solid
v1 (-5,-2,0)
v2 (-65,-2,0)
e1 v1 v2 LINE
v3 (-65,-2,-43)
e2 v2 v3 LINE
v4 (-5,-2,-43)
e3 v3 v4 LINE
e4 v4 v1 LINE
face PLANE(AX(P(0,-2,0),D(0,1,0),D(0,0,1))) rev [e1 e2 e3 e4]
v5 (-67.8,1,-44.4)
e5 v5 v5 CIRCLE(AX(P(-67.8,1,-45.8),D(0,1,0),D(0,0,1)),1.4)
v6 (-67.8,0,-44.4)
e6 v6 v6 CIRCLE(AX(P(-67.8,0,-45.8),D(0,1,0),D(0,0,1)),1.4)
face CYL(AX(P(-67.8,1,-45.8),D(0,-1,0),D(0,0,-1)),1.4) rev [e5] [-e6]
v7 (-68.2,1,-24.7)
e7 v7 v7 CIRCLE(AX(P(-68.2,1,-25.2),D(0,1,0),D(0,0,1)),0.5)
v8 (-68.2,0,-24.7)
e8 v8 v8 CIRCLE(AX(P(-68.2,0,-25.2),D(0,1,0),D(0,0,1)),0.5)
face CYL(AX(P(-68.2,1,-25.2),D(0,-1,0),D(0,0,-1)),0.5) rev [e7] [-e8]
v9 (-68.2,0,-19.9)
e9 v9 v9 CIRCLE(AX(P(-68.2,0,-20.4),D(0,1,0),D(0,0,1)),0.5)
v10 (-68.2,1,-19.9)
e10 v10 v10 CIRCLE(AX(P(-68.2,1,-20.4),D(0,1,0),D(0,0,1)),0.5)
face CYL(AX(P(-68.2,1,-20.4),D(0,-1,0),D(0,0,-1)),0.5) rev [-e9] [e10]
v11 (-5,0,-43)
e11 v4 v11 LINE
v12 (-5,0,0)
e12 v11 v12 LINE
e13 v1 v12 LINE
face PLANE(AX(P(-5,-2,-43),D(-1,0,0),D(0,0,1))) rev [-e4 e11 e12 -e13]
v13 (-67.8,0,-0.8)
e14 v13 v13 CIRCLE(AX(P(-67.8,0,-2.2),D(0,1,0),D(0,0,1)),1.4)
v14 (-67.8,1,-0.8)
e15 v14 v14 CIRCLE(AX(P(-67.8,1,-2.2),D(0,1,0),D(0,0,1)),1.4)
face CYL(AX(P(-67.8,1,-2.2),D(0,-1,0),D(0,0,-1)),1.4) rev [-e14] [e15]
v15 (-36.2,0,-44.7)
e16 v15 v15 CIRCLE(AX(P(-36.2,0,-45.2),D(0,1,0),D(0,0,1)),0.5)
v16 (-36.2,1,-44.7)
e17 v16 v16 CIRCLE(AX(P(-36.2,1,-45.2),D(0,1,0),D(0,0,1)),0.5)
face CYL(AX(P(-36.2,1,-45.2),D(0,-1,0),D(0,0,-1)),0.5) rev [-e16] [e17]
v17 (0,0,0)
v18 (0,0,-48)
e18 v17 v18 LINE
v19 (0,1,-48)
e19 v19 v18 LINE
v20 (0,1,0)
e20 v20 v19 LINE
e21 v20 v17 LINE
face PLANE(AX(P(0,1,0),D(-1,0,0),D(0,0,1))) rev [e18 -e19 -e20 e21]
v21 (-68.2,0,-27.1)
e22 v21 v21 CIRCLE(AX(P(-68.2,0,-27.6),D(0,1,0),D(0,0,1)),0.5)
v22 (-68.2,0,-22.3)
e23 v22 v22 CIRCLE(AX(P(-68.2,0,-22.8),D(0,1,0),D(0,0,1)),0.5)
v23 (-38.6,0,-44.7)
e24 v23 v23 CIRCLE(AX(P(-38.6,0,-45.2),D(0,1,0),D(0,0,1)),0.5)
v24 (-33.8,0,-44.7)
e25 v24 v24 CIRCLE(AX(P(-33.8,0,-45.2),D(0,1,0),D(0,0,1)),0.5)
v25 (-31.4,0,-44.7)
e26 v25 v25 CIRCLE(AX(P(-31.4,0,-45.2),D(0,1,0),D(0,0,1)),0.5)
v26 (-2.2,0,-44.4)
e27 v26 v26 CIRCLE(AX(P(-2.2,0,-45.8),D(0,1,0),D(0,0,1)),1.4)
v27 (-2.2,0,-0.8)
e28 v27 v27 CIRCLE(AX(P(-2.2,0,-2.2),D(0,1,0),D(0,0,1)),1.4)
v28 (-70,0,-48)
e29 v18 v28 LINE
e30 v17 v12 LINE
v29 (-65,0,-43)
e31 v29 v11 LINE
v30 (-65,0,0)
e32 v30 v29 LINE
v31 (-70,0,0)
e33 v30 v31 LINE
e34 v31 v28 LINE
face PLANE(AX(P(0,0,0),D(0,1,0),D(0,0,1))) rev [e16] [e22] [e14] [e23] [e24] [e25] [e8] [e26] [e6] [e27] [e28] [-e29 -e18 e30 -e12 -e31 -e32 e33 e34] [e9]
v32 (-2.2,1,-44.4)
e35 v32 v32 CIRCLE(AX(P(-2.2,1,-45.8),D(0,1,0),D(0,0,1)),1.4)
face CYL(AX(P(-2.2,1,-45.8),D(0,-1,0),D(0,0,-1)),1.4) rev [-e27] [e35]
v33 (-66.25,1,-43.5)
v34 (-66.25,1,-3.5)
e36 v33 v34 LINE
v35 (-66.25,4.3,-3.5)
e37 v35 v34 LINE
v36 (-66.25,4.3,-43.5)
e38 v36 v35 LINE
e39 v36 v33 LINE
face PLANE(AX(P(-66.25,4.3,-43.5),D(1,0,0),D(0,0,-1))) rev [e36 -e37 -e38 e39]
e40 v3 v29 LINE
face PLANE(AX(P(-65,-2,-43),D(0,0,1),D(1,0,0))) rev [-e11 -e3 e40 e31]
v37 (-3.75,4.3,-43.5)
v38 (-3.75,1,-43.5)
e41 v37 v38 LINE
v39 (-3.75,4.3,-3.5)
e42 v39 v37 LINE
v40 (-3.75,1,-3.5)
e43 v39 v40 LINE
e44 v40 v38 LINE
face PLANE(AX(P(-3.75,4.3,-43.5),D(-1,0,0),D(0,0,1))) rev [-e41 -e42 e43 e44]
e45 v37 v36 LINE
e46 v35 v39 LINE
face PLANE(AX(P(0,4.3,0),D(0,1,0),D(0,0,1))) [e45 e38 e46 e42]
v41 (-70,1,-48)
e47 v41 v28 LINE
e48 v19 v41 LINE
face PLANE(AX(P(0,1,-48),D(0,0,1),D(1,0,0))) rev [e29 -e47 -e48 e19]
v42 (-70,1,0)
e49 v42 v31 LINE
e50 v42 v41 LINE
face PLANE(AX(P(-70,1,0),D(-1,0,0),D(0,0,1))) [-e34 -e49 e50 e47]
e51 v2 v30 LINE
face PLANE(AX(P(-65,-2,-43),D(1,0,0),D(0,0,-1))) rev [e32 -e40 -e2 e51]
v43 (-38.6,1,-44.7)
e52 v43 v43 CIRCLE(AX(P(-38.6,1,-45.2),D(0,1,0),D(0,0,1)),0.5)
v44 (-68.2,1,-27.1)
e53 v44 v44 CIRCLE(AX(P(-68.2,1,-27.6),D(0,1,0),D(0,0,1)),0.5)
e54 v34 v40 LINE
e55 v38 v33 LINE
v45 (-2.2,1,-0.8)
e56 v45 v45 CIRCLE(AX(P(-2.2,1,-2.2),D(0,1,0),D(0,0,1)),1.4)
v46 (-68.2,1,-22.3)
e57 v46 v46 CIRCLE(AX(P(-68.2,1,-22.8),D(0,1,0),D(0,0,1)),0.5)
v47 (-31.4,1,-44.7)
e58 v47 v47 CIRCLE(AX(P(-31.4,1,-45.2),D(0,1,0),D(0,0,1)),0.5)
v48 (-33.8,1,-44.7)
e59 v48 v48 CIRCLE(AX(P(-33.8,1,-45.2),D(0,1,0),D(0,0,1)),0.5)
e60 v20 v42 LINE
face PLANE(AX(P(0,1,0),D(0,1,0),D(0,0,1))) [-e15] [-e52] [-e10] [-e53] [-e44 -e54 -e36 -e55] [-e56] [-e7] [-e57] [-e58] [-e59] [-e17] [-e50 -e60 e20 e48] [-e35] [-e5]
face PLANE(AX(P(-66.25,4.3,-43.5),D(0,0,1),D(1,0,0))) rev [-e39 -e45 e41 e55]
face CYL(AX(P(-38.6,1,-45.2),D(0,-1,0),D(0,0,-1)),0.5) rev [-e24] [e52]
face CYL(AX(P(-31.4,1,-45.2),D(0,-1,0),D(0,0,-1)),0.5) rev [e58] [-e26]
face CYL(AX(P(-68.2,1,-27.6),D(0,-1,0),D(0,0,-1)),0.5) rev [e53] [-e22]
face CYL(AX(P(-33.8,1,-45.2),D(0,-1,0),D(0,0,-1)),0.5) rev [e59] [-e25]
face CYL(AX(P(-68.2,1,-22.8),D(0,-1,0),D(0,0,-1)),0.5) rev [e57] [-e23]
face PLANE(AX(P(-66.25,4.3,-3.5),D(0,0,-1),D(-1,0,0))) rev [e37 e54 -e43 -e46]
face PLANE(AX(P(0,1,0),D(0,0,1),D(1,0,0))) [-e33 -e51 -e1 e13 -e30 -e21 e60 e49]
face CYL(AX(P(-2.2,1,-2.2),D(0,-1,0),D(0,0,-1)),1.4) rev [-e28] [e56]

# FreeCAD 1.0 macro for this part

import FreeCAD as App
import Part
import Sketcher
from FreeCAD import Vector
Q = App.Units.Quantity

doc = App.newDocument("Part")
params = doc.addObject("Spreadsheet::Sheet", "Params")
for row, (alias, value) in enumerate([
    ("sketch1_diameter", "1 mm"),
    ("sketch1_diameter2", "2.8 mm"),
    ("sketch1_width", "70 mm"),
    ("sketch1_height", "48 mm"),
    ("pad1_length", "1 mm"),
    ("sketch2_height", "40 mm"),
    ("sketch2_width", "62.5 mm"),
    ("pad2_length", "3.3 mm"),
    ("sketch3_width", "60 mm"),
    ("sketch3_height", "43 mm"),
    ("pad3_length", "2 mm"),
], start=1):
    params.set(f"A{row}", alias)
    params.set(f"B{row}", "=" + value)
    params.setAlias(f"B{row}", alias)

body = doc.addObject("PartDesign::Body", "Body")

# Sketch on XZ plane
sketch1 = body.newObject("Sketcher::SketchObject", "Sketch")
sketch1.AttachmentSupport = (doc.getObject("XZ_Plane"), [""])
sketch1.MapMode = "FlatFace"
sketch1.addGeometry([
    Part.LineSegment(Vector(-70, -48, 0), Vector(-70, 0, 0)),  # 0
    Part.LineSegment(Vector(-70, 0, 0), Vector(0, 0, 0)),  # 1
    Part.LineSegment(Vector(0, 0, 0), Vector(0, -48, 0)),  # 2
    Part.LineSegment(Vector(0, -48, 0), Vector(-70, -48, 0)),  # 3
    Part.Circle(Vector(-67.8, -2.2, 0), Vector(0, 0, 1), 1.4),  # 4
    Part.Circle(Vector(-68.2, -20.4, 0), Vector(0, 0, 1), 0.5),  # 5
    Part.Circle(Vector(-68.2, -22.8, 0), Vector(0, 0, 1), 0.5),  # 6
    Part.Circle(Vector(-2.2, -2.2, 0), Vector(0, 0, 1), 1.4),  # 7
    Part.Circle(Vector(-68.2, -25.2, 0), Vector(0, 0, 1), 0.5),  # 8
    Part.Circle(Vector(-68.2, -27.6, 0), Vector(0, 0, 1), 0.5),  # 9
    Part.Circle(Vector(-67.8, -45.8, 0), Vector(0, 0, 1), 1.4),  # 10
    Part.Circle(Vector(-38.6, -45.2, 0), Vector(0, 0, 1), 0.5),  # 11
    Part.Circle(Vector(-36.2, -45.2, 0), Vector(0, 0, 1), 0.5),  # 12
    Part.Circle(Vector(-33.8, -45.2, 0), Vector(0, 0, 1), 0.5),  # 13
    Part.Circle(Vector(-31.4, -45.2, 0), Vector(0, 0, 1), 0.5),  # 14
    Part.Circle(Vector(-2.2, -45.8, 0), Vector(0, 0, 1), 1.4),  # 15
], False)
sketch1.addConstraint([
    Sketcher.Constraint("Coincident", 0, 2, 1, 1),
    Sketcher.Constraint("Coincident", 1, 2, 2, 1),
    Sketcher.Constraint("Coincident", 2, 2, 3, 1),
    Sketcher.Constraint("Coincident", 3, 2, 0, 1),
    Sketcher.Constraint("Vertical", 0),
    Sketcher.Constraint("Horizontal", 1),
    Sketcher.Constraint("Vertical", 2),
    Sketcher.Constraint("Horizontal", 3),
    Sketcher.Constraint("Coincident", 1, 2, -1, 1),
    Sketcher.Constraint("Equal", 5, 6),
    Sketcher.Constraint("Equal", 4, 7),
    Sketcher.Constraint("Equal", 6, 8),
    Sketcher.Constraint("Equal", 8, 9),
    Sketcher.Constraint("Equal", 7, 10),
    Sketcher.Constraint("Equal", 9, 11),
    Sketcher.Constraint("Equal", 11, 12),
    Sketcher.Constraint("Equal", 12, 13),
    Sketcher.Constraint("Equal", 13, 14),
    Sketcher.Constraint("Equal", 10, 15),
    Sketcher.Constraint("Horizontal", 4, 3, 7, 3),
    Sketcher.Constraint("Horizontal", 11, 3, 12, 3),
    Sketcher.Constraint("Horizontal", 12, 3, 13, 3),
    Sketcher.Constraint("Horizontal", 13, 3, 14, 3),
    Sketcher.Constraint("Horizontal", 10, 3, 15, 3),
    Sketcher.Constraint("Vertical", 5, 3, 6, 3),
    Sketcher.Constraint("Vertical", 6, 3, 8, 3),
    Sketcher.Constraint("Vertical", 8, 3, 9, 3),
    Sketcher.Constraint("Vertical", 4, 3, 10, 3),
    Sketcher.Constraint("Vertical", 7, 3, 15, 3),
    Sketcher.Constraint("Diameter", 5, Q("1 mm")),
    Sketcher.Constraint("Diameter", 4, Q("2.8 mm")),
    Sketcher.Constraint("DistanceX", 1, 1, 1, 2, Q("70 mm")),
    Sketcher.Constraint("DistanceY", 0, 1, 0, 2, Q("48 mm")),
    Sketcher.Constraint("DistanceX", 5, 3, 7, 3, Q("66 mm")),
    Sketcher.Constraint("DistanceY", 8, 3, 4, 3, Q("23 mm")),
    Sketcher.Constraint("DistanceY", 10, 3, 6, 3, Q("23 mm")),
    Sketcher.Constraint("DistanceY", 11, 3, 8, 3, Q("20 mm")),
    Sketcher.Constraint("DistanceX", 9, 3, 12, 3, Q("32 mm")),
    Sketcher.Constraint("DistanceX", 10, 3, 13, 3, Q("34 mm")),
    Sketcher.Constraint("DistanceX", 4, 3, -1, 1, Q("67.8 mm")),
    Sketcher.Constraint("DistanceY", 4, 3, -1, 1, Q("2.2 mm")),
    Sketcher.Constraint("DistanceX", 5, 3, -1, 1, Q("68.2 mm")),
    Sketcher.Constraint("DistanceY", 5, 3, -1, 1, Q("20.4 mm")),
    Sketcher.Constraint("DistanceY", 6, 3, -1, 1, Q("22.8 mm")),
    Sketcher.Constraint("DistanceY", 9, 3, -1, 1, Q("27.6 mm")),
    Sketcher.Constraint("DistanceX", 11, 3, -1, 1, Q("38.6 mm")),
    Sketcher.Constraint("DistanceX", 14, 3, -1, 1, Q("31.4 mm")),
])
sketch1.setExpression("Constraints[29]", "Params.sketch1_diameter")
sketch1.setExpression("Constraints[30]", "Params.sketch1_diameter2")
sketch1.setExpression("Constraints[31]", "Params.sketch1_width")
sketch1.setExpression("Constraints[32]", "Params.sketch1_height")
pad1 = body.newObject("PartDesign::Pad", "Pad")
pad1.Profile = sketch1
pad1.setExpression("Length", "Params.pad1_length")
pad1.Reversed = True

# Sketch on XZ plane
sketch2 = body.newObject("Sketcher::SketchObject", "Sketch001")
sketch2.AttachmentSupport = (doc.getObject("XZ_Plane"), [""])
sketch2.MapMode = "FlatFace"
sketch2.AttachmentOffset = App.Placement(Vector(0, 0, -1), App.Rotation())
sketch2.addGeometry([
    Part.LineSegment(Vector(-66, -44, 0), Vector(-66, -4, 0)),
    Part.LineSegment(Vector(-66, -4, 0), Vector(-4, -4, 0)),
    Part.LineSegment(Vector(-4, -4, 0), Vector(-4, -44, 0)),
    Part.LineSegment(Vector(-4, -44, 0), Vector(-66, -44, 0)),
], False)
sketch2.addConstraint([
    Sketcher.Constraint("Coincident", 0, 2, 1, 1),
    Sketcher.Constraint("Coincident", 1, 2, 2, 1),
    Sketcher.Constraint("Coincident", 2, 2, 3, 1),
    Sketcher.Constraint("Coincident", 3, 2, 0, 1),
    Sketcher.Constraint("Vertical", 0),
    Sketcher.Constraint("Horizontal", 1),
    Sketcher.Constraint("Vertical", 2),
    Sketcher.Constraint("Horizontal", 3),
    Sketcher.Constraint("DistanceY", 0, 1, 0, 2, Q("40 mm")),
    Sketcher.Constraint("DistanceX", 1, 1, 1, 2, Q("62.5 mm")),
    Sketcher.Constraint("DistanceY", 0, 2, -1, 1, Q("3.5 mm")),
    Sketcher.Constraint("DistanceX", 0, 2, -1, 1, Q("66.25 mm")),
])
sketch2.setExpression("Constraints[8]", "Params.sketch2_height")
sketch2.setExpression("Constraints[9]", "Params.sketch2_width")
pad2 = body.newObject("PartDesign::Pad", "Pad001")
pad2.Profile = sketch2
pad2.setExpression("Length", "Params.pad2_length")
pad2.Reversed = True

# Sketch on XZ plane
sketch3 = body.newObject("Sketcher::SketchObject", "Sketch002")
sketch3.AttachmentSupport = (doc.getObject("XZ_Plane"), [""])
sketch3.MapMode = "FlatFace"
sketch3.addGeometry([
    Part.LineSegment(Vector(-65, 0, 0), Vector(-65, -43, 0)),
    Part.LineSegment(Vector(-65, -43, 0), Vector(-5, -43, 0)),
    Part.LineSegment(Vector(-5, -43, 0), Vector(-5, 0, 0)),
    Part.LineSegment(Vector(-5, 0, 0), Vector(-65, 0, 0)),
], False)
sketch3.addConstraint([
    Sketcher.Constraint("Coincident", 0, 2, 1, 1),
    Sketcher.Constraint("Coincident", 1, 2, 2, 1),
    Sketcher.Constraint("Coincident", 2, 2, 3, 1),
    Sketcher.Constraint("Coincident", 3, 2, 0, 1),
    Sketcher.Constraint("Vertical", 0),
    Sketcher.Constraint("Horizontal", 1),
    Sketcher.Constraint("Vertical", 2),
    Sketcher.Constraint("Horizontal", 3),
    Sketcher.Constraint("PointOnObject", 2, 2, -1),
    Sketcher.Constraint("DistanceX", 1, 1, 1, 2, Q("60 mm")),
    Sketcher.Constraint("DistanceY", 0, 2, 0, 1, Q("43 mm")),
    Sketcher.Constraint("DistanceX", 0, 2, -1, 1, Q("65 mm")),
])
sketch3.setExpression("Constraints[9]", "Params.sketch3_width")
sketch3.setExpression("Constraints[10]", "Params.sketch3_height")
pad3 = body.newObject("PartDesign::Pad", "Pad002")
pad3.Profile = sketch3
pad3.setExpression("Length", "Params.pad3_length")

doc.recompute()
